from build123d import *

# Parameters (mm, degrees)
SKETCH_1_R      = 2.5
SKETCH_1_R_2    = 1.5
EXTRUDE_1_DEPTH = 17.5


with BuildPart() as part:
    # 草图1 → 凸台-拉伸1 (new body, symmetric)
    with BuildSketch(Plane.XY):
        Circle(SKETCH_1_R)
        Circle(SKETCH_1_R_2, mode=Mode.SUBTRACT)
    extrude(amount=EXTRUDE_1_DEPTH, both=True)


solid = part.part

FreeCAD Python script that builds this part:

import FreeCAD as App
import Part
import Sketcher

doc = App.newDocument("Part")
body = doc.addObject("PartDesign::Body", "Body")

sketch1 = body.newObject("Sketcher::SketchObject", "Sketch")
sketch1.AttachmentSupport = (doc.getObject("XY_Plane"), [""])
sketch1.MapMode = "FlatFace"
sketch1.addGeometry([
    Part.Circle(App.Vector(0, 0, 0), App.Vector(0, 0, 1), 2.5),
    Part.Circle(App.Vector(0, 0, 0), App.Vector(0, 0, 1), 1.5),
], False)
sketch1.addConstraint([
    Sketcher.Constraint("Coincident", 0, 3, -1, 1),
    Sketcher.Constraint("Coincident", 1, 3, -1, 1),
    Sketcher.Constraint("Diameter", 0, 5.0),
    Sketcher.Constraint("Diameter", 1, 3.0),
])
pad1 = body.newObject("PartDesign::Pad", "Pad")
pad1.Profile = sketch1
pad1.Length = 35
pad1.Midplane = True

doc.recompute()
